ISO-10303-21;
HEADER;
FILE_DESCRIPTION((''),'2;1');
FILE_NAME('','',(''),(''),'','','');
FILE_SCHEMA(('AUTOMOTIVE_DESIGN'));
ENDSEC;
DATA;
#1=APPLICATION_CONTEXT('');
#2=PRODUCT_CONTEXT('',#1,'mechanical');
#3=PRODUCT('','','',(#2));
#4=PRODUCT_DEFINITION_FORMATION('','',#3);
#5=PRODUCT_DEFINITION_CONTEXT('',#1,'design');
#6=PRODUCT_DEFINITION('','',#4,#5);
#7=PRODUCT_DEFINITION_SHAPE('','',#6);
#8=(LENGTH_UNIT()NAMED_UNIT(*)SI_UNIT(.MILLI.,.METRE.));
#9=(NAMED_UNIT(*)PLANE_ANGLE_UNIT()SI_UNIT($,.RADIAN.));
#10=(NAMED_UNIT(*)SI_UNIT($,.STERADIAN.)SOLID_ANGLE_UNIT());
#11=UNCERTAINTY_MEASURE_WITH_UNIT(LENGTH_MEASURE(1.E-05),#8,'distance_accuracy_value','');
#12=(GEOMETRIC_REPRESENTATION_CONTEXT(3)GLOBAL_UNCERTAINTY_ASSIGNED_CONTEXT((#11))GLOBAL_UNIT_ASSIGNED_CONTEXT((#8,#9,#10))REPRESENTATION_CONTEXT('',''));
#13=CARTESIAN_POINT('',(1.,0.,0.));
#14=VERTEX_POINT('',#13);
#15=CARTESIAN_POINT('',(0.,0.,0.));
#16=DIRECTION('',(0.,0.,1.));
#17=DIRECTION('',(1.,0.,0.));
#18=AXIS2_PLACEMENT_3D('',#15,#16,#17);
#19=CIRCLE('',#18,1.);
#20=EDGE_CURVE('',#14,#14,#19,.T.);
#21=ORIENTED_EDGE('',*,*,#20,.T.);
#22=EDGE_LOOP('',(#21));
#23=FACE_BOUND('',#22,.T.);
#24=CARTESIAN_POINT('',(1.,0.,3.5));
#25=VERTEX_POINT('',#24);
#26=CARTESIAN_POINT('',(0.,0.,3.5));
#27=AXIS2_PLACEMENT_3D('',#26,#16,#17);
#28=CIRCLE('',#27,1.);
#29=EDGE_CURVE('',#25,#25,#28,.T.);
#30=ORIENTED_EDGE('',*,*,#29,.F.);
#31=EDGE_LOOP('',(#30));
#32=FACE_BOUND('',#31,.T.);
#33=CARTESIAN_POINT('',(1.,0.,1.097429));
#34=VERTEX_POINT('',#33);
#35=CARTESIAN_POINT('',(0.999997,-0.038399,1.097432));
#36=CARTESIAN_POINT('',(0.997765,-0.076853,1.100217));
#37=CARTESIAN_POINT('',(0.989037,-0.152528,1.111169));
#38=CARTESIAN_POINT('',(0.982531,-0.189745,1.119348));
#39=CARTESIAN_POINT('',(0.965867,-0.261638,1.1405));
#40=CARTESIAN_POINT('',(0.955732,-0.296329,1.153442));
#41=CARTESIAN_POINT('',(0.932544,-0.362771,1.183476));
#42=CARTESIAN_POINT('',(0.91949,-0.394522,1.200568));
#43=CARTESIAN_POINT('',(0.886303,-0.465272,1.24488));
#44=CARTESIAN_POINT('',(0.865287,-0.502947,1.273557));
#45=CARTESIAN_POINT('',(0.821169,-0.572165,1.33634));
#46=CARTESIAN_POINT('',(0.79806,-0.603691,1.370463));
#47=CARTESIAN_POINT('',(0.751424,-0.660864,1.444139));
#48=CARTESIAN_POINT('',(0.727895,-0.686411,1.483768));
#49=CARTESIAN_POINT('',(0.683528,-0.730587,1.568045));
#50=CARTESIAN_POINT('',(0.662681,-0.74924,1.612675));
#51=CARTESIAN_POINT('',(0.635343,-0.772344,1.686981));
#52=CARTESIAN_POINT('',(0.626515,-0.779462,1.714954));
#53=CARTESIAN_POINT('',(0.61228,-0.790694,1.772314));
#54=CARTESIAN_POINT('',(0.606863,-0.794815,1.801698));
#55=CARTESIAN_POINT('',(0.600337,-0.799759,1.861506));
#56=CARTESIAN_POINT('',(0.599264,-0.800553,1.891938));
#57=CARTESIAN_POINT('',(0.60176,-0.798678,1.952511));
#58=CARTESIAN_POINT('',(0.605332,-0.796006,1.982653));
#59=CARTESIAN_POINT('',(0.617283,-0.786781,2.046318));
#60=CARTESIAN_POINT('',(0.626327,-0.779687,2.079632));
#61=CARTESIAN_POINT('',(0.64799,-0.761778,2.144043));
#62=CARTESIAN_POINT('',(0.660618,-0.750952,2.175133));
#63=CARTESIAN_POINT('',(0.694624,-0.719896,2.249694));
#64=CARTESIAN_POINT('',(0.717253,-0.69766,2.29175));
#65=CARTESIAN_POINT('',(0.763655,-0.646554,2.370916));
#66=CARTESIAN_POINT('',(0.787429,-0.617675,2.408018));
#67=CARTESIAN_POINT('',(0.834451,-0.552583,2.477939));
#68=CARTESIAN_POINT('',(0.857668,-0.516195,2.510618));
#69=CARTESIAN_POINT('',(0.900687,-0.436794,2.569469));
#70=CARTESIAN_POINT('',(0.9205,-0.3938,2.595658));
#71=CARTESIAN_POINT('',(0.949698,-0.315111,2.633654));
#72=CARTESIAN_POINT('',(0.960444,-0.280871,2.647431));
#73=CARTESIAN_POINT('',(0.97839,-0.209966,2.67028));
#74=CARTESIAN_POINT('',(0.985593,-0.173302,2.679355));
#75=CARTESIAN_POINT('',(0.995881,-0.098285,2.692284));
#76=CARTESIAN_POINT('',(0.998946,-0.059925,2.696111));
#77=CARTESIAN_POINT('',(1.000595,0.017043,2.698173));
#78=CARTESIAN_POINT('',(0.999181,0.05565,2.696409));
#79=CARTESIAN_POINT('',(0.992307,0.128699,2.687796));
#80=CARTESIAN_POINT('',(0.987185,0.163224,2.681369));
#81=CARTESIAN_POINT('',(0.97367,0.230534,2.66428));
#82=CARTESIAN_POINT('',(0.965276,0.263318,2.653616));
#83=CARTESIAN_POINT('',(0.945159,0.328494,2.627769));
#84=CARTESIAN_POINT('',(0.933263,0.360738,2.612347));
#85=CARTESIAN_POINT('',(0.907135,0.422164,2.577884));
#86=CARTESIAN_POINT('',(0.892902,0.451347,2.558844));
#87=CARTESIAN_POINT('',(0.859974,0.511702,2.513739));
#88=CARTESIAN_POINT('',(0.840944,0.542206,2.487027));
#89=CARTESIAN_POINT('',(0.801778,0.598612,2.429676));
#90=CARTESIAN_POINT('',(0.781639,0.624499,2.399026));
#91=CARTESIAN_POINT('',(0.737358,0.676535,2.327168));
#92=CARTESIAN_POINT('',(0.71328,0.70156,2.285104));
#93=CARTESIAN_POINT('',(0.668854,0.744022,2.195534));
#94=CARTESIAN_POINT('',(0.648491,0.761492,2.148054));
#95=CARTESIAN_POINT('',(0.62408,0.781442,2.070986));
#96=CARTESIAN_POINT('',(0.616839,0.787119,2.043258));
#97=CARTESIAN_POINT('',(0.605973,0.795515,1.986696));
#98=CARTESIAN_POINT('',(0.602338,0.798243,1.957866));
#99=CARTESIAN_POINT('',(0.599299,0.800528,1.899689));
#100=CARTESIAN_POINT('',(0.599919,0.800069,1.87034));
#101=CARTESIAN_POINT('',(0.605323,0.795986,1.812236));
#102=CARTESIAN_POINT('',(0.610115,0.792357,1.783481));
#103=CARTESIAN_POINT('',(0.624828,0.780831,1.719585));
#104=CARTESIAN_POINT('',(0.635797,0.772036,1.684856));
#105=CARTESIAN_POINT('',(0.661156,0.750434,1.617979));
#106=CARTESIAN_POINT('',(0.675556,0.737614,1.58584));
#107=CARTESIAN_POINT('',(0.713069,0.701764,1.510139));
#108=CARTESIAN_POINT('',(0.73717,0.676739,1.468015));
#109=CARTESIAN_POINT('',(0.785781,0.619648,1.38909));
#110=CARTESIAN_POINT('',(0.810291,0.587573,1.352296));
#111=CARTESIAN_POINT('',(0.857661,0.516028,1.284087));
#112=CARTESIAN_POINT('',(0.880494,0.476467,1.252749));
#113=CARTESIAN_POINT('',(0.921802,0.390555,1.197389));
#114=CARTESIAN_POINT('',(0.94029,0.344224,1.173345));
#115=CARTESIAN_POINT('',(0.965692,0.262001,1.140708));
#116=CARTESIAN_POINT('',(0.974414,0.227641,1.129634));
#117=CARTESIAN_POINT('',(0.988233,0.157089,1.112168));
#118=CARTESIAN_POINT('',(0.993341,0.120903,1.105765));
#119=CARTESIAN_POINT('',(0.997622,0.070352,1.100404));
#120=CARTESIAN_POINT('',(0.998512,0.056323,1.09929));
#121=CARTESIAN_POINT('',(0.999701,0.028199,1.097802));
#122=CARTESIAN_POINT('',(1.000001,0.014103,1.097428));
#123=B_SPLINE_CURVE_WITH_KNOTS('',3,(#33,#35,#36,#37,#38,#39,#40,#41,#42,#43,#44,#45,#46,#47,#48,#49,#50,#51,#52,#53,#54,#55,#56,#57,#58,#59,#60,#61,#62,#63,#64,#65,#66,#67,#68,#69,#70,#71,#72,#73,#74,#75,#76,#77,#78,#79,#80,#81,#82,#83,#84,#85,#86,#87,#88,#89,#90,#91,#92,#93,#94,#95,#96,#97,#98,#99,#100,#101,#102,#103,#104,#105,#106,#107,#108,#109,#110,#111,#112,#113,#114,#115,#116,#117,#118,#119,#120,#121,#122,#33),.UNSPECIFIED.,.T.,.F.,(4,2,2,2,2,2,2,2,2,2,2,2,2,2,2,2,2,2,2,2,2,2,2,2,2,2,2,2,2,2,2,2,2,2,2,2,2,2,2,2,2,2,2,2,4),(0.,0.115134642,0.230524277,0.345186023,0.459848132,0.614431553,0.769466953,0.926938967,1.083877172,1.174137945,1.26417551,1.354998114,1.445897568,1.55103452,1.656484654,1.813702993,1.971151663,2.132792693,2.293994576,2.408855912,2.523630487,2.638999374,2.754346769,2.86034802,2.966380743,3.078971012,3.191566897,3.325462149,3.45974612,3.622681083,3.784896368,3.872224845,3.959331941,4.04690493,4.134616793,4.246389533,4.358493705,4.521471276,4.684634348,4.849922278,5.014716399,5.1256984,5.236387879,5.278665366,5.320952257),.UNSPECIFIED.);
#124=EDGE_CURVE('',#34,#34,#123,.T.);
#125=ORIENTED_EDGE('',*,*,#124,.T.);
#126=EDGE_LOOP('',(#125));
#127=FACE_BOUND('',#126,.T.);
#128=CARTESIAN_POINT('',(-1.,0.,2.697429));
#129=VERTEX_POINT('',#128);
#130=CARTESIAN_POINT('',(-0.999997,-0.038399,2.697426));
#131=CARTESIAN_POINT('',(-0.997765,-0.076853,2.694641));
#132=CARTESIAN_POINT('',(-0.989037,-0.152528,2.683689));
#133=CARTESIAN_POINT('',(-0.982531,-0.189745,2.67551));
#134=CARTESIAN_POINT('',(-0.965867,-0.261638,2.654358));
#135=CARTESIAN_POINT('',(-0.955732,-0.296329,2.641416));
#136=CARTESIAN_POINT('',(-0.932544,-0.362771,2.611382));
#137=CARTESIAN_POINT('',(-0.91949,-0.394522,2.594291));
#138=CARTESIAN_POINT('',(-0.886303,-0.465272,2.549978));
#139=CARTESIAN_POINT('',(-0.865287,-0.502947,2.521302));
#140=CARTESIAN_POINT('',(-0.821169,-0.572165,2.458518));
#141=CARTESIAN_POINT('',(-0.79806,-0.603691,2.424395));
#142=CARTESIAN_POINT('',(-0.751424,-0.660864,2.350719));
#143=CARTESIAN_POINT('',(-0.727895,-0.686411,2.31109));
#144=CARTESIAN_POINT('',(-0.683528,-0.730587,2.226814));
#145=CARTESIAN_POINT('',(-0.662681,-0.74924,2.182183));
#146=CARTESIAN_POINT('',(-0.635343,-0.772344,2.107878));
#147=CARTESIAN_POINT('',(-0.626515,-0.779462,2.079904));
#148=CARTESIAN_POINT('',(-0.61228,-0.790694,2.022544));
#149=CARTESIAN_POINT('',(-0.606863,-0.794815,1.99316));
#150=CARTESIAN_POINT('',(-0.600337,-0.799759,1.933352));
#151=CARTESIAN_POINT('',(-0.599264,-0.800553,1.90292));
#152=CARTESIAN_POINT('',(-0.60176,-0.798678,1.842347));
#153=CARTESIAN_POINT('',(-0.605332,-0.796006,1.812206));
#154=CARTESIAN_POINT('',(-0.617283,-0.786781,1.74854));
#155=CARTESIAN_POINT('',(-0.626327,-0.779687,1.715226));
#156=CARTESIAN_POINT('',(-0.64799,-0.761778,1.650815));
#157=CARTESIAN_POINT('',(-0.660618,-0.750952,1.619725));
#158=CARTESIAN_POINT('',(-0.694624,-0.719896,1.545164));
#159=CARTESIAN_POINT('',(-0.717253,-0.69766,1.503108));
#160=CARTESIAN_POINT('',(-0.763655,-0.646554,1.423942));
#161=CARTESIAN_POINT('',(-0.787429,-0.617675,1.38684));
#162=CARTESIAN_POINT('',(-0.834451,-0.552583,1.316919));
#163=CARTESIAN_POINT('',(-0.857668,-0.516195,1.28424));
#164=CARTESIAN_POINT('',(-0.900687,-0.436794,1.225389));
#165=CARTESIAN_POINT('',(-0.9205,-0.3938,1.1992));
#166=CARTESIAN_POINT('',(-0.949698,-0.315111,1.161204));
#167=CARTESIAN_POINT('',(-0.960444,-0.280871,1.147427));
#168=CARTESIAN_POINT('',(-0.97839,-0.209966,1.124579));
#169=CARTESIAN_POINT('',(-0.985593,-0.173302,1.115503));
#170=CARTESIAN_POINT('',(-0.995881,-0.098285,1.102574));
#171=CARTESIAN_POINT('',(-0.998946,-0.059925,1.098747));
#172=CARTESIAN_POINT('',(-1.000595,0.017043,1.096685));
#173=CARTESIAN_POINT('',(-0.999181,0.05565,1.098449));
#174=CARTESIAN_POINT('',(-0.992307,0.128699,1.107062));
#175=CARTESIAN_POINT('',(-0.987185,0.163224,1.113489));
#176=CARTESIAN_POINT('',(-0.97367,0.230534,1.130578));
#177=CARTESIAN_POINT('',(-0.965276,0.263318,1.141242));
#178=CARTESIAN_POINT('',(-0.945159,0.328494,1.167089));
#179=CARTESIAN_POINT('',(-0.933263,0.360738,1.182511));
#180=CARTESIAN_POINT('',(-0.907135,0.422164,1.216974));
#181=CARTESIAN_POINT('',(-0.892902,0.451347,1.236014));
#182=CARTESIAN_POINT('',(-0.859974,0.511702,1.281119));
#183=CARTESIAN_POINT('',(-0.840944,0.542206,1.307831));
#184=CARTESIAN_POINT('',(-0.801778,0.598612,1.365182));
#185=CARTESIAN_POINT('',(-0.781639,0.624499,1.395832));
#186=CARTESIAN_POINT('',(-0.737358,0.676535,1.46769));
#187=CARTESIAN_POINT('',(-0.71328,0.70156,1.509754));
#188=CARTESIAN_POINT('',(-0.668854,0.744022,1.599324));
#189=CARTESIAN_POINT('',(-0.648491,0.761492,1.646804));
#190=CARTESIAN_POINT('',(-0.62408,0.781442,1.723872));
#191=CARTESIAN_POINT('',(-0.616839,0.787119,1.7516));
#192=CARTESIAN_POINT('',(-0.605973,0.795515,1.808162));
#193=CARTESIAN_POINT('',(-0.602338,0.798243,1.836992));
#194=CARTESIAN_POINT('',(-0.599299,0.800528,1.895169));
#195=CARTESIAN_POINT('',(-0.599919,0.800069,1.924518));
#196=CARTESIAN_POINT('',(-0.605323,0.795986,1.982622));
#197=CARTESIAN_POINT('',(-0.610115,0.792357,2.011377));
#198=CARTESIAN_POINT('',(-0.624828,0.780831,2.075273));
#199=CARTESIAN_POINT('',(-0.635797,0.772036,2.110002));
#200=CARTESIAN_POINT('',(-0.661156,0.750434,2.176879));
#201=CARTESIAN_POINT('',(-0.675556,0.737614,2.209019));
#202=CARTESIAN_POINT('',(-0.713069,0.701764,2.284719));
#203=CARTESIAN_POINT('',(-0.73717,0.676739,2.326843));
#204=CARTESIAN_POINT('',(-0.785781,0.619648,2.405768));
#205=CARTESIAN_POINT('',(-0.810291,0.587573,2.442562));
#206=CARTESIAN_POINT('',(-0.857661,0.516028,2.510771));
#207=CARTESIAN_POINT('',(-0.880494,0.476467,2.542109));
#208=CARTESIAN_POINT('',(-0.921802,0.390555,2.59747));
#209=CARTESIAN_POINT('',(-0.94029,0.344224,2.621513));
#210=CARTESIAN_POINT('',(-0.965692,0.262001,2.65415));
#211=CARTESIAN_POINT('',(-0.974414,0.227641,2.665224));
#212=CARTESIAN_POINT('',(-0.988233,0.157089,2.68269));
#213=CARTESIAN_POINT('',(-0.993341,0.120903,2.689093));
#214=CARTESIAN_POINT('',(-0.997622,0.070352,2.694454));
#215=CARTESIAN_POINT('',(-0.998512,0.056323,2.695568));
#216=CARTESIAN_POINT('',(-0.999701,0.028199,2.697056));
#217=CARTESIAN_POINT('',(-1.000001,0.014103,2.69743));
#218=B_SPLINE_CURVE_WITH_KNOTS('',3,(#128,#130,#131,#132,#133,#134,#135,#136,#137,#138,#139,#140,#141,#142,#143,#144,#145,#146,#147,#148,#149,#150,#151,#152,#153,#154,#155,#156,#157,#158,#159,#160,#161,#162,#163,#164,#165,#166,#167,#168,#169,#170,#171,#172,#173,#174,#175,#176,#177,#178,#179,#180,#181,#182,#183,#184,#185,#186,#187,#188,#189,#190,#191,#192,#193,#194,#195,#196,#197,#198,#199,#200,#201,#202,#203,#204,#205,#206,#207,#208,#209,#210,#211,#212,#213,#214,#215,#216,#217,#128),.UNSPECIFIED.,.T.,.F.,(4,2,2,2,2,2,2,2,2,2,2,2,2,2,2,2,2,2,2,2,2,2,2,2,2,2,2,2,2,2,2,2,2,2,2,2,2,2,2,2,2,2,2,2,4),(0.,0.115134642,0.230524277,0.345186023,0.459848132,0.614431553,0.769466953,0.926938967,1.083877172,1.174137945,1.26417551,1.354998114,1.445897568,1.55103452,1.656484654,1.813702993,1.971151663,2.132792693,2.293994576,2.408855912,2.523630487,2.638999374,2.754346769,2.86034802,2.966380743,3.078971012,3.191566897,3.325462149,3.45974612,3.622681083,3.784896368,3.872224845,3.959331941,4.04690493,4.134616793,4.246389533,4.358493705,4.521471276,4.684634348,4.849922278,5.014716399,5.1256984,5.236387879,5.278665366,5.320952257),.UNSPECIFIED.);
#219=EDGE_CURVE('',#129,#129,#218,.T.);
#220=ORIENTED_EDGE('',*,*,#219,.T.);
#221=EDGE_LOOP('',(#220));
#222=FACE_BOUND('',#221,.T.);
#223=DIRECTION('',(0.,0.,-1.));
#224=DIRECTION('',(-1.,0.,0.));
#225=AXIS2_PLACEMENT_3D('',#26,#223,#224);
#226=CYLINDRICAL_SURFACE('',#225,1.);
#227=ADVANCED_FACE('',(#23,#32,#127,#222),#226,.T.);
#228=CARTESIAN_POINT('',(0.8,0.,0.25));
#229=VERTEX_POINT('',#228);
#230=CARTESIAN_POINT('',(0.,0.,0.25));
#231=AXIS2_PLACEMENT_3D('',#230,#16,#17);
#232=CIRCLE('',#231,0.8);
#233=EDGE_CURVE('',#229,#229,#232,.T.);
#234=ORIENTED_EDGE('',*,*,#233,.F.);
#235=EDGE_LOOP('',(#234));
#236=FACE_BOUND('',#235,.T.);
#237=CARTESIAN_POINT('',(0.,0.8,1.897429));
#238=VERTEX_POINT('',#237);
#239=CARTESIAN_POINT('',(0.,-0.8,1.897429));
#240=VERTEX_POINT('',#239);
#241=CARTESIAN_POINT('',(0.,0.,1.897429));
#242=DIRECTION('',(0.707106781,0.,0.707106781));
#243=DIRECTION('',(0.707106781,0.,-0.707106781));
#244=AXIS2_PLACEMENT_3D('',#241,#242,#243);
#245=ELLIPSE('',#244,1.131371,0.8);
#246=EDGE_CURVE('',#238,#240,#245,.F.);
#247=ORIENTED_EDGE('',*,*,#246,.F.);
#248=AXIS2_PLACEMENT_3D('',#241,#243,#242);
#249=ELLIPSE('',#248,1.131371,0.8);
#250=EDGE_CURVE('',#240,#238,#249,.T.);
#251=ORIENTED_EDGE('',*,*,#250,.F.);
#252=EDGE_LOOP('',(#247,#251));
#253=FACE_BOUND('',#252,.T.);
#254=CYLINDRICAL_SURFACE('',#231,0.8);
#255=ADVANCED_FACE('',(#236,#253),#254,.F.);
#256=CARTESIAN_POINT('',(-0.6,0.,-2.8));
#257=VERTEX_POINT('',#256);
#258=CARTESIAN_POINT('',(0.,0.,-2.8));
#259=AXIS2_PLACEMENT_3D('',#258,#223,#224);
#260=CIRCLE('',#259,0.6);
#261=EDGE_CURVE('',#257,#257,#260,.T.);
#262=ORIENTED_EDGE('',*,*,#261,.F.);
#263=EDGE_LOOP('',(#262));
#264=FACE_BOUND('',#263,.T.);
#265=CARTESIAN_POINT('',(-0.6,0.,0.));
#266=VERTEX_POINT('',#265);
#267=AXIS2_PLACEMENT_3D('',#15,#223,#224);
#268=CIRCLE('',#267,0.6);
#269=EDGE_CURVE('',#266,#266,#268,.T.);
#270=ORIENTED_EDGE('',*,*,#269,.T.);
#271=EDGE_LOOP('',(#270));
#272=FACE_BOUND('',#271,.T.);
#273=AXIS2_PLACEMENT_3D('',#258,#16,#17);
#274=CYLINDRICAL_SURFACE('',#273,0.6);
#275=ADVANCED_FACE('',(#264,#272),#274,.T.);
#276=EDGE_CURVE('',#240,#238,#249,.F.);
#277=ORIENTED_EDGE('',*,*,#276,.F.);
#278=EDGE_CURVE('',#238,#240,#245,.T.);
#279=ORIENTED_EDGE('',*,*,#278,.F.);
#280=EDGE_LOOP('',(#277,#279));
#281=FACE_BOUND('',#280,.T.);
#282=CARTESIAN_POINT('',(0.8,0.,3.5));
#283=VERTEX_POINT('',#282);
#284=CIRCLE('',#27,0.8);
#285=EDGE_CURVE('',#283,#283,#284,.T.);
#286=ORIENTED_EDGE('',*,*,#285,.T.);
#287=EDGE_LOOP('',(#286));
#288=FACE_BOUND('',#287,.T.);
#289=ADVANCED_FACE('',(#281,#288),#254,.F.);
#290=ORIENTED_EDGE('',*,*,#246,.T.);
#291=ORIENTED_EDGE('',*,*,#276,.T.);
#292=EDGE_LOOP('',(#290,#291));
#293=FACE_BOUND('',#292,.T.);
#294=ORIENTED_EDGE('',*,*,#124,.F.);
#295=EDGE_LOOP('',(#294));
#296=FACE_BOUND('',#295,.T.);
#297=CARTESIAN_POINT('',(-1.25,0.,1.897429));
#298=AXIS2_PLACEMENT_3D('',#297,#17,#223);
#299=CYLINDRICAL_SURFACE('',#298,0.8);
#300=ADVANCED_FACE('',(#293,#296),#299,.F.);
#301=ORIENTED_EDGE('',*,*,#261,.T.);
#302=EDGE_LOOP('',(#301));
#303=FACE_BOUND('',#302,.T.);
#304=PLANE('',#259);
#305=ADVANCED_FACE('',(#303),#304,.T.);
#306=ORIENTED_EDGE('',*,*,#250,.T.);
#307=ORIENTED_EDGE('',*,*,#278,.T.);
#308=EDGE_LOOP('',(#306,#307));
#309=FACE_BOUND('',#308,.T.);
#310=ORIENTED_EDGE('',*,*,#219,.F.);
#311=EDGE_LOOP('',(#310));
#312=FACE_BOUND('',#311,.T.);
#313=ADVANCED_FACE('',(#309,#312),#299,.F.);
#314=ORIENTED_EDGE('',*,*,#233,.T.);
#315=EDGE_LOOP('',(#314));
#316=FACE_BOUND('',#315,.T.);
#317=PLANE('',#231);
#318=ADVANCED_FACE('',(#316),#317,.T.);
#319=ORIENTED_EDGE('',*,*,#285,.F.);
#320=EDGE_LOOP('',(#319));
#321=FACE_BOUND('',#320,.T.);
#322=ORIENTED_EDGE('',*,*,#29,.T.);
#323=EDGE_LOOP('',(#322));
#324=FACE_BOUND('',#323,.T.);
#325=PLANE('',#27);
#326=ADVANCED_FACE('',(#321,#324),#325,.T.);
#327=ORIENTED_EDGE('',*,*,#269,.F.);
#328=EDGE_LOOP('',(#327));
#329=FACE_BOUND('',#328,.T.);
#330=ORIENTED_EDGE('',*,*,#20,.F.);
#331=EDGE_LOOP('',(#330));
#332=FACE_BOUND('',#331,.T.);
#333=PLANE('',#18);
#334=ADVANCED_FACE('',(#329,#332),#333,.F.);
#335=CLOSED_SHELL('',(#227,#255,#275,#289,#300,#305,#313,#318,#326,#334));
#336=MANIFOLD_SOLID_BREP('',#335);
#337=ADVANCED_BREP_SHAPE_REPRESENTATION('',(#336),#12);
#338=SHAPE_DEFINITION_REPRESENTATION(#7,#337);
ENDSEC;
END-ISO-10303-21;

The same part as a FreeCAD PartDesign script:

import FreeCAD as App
import Part
import Sketcher

V = App.Vector

doc = App.newDocument("Part")
params = doc.addObject("Spreadsheet::Sheet", "Params")
for row, (alias, value) in enumerate([
    ("sketch1_diameter", "2 mm"),
    ("pad1_length", "3.5 mm"),
    ("sketch2_diameter", "1.2 mm"),
    ("pad2_length", "2.8 mm"),
    ("sketch3_diameter", "1.6 mm"),
    ("pocket1_length", "2.5 mm"),
    ("sketch4_diameter", "1.6 mm"),
    ("pocket2_length", "6.5 mm"),
], start=1):
    params.set(f"A{row}", alias)
    params.set(f"B{row}", "=" + value)
    params.setAlias(f"B{row}", alias)

body = doc.addObject("PartDesign::Body", "Body")

# Sketch on XY plane
sketch1 = body.newObject("Sketcher::SketchObject", "Sketch")
sketch1.AttachmentSupport = (doc.getObject("XY_Plane"), [""])
sketch1.MapMode = "FlatFace"
sketch1.addGeometry(Part.Circle(V(0, 0, 0), V(0, 0, 1), 1), False)
sketch1.addConstraint([
    Sketcher.Constraint("Coincident", 0, 3, -1, 1),
    Sketcher.Constraint("Diameter", 0, 2.0),
])
sketch1.setExpression("Constraints[1]", "Params.sketch1_diameter")
pad1 = body.newObject("PartDesign::Pad", "Pad")
pad1.Profile = sketch1
pad1.setExpression("Length", "Params.pad1_length")

# Sketch on XY plane
sketch2 = body.newObject("Sketcher::SketchObject", "Sketch001")
sketch2.AttachmentSupport = (doc.getObject("XY_Plane"), [""])
sketch2.MapMode = "FlatFace"
sketch2.addGeometry(Part.Circle(V(0, 0, 0), V(0, 0, 1), 0.6), False)
sketch2.addConstraint([
    Sketcher.Constraint("Coincident", 0, 3, -1, 1),
    Sketcher.Constraint("Diameter", 0, 1.2),
])
sketch2.setExpression("Constraints[1]", "Params.sketch2_diameter")
pad2 = body.newObject("PartDesign::Pad", "Pad001")
pad2.Profile = sketch2
pad2.setExpression("Length", "Params.pad2_length")
pad2.Reversed = True

# Sketch on YZ plane
sketch3 = body.newObject("Sketcher::SketchObject", "Sketch002")
sketch3.AttachmentSupport = (doc.getObject("YZ_Plane"), [""])
sketch3.MapMode = "FlatFace"
sketch3.addGeometry(Part.Circle(V(0, 1.897429, 0), V(0, 0, 1), 0.8), False)
sketch3.addConstraint([
    Sketcher.Constraint("PointOnObject", 0, 3, -2),
    Sketcher.Constraint("Diameter", 0, 1.6),
    Sketcher.Constraint("DistanceY", -1, 1, 0, 3, 1.897429),
])
sketch3.setExpression("Constraints[1]", "Params.sketch3_diameter")
pocket1 = body.newObject("PartDesign::Pocket", "Pocket")
pocket1.Profile = sketch3
pocket1.setExpression("Length", "Params.pocket1_length")
pocket1.Midplane = True

# Sketch on XY plane
sketch4 = body.newObject("Sketcher::SketchObject", "Sketch003")
sketch4.AttachmentSupport = (doc.getObject("XY_Plane"), [""])
sketch4.MapMode = "FlatFace"
sketch4.AttachmentOffset = App.Placement(V(0, 0, 3.5), App.Rotation())
sketch4.addGeometry(Part.Circle(V(0, 0, 0), V(0, 0, 1), 0.8), False)
sketch4.addConstraint([
    Sketcher.Constraint("Coincident", 0, 3, -1, 1),
    Sketcher.Constraint("Diameter", 0, 1.6),
])
sketch4.setExpression("Constraints[1]", "Params.sketch4_diameter")
pocket2 = body.newObject("PartDesign::Pocket", "Pocket001")
pocket2.Profile = sketch4
pocket2.setExpression("Length", "Params.pocket2_length")
pocket2.Midplane = True

doc.recompute()
